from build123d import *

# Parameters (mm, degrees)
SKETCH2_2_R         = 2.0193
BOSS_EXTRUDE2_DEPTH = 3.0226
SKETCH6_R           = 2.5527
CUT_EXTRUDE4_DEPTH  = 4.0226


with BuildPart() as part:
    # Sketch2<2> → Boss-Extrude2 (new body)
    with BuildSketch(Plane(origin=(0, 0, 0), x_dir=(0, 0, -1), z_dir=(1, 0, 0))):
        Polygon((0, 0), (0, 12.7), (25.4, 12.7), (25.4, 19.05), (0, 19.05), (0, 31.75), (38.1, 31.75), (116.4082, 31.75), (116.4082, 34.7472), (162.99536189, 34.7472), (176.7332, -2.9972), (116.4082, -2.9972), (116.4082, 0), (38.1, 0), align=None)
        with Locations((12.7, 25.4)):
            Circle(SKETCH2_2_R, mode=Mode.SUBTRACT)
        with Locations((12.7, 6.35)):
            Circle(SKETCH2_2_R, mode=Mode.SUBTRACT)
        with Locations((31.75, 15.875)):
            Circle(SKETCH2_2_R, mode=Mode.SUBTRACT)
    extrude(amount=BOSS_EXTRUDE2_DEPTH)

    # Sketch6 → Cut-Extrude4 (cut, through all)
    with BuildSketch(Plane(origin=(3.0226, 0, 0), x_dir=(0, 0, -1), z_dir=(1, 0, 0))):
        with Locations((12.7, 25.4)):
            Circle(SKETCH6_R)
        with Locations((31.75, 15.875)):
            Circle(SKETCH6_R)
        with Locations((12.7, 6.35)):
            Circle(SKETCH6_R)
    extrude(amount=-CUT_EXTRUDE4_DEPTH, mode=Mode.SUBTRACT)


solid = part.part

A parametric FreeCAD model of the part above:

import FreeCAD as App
import Part
import Sketcher
Q = App.Units.Quantity

doc = App.newDocument("Part")
params = doc.addObject("Spreadsheet::Sheet", "Params")
for row, (alias, value) in enumerate([
    ("sketch1_height", "1 in"),
    ("sketch1_diameter", "0.159 in"),
    ("sketch1_width", "0.5 in"),
    ("sketch1_width2", "0.25 in"),
    ("sketch1_width3", "0.118 in"),
    ("pad1_length", "0.119 in"),
    ("sketch2_diameter", "0.201 in"),
], start=1):
    params.set(f"A{row}", alias)
    params.set(f"B{row}", "=" + value)
    params.setAlias(f"B{row}", alias)

body = doc.addObject("PartDesign::Body", "Body")

# Sketch on YZ plane
sketch1 = body.newObject("Sketcher::SketchObject", "Sketch")
sketch1.AttachmentSupport = (doc.getObject("YZ_Plane"), [""])
sketch1.MapMode = "FlatFace"
sketch1.addGeometry([
    Part.LineSegment(App.Vector(12.7, 0, 0), App.Vector(0, 0, 0)),  # 0
    Part.LineSegment(App.Vector(0, 0, 0), App.Vector(0, -116.4, 0)),  # 1
    Part.LineSegment(App.Vector(0, -116.4, 0), App.Vector(-3, -116.4, 0)),  # 2
    Part.LineSegment(App.Vector(-3, -116.4, 0), App.Vector(-3, -176.7, 0)),  # 3
    Part.LineSegment(App.Vector(-3, -176.7, 0), App.Vector(34.7, -163, 0)),  # 4
    Part.LineSegment(App.Vector(34.7, -163, 0), App.Vector(34.7, -116.4, 0)),  # 5
    Part.LineSegment(App.Vector(34.7, -116.4, 0), App.Vector(31.8, -116.4, 0)),  # 6
    Part.LineSegment(App.Vector(31.8, -116.4, 0), App.Vector(31.8, 0, 0)),  # 7
    Part.LineSegment(App.Vector(31.8, 0, 0), App.Vector(19.1, 0, 0)),  # 8
    Part.LineSegment(App.Vector(19.1, 0, 0), App.Vector(19.1, -25.4, 0)),  # 9
    Part.LineSegment(App.Vector(19.1, -25.4, 0), App.Vector(12.7, -25.4, 0)),  # 10
    Part.LineSegment(App.Vector(12.7, -25.4, 0), App.Vector(12.7, 0, 0)),  # 11
    Part.Circle(App.Vector(6.3, -12.7, 0), App.Vector(0, 0, 1), 2),  # 12
    Part.Circle(App.Vector(15.9, -31.8, 0), App.Vector(0, 0, 1), 2),  # 13
    Part.Circle(App.Vector(25.4, -12.7, 0), App.Vector(0, 0, 1), 2),  # 14
], False)
sketch1.addConstraint([
    Sketcher.Constraint("Coincident", 0, 2, 1, 1),
    Sketcher.Constraint("Coincident", 1, 2, 2, 1),
    Sketcher.Constraint("Coincident", 2, 2, 3, 1),
    Sketcher.Constraint("Coincident", 3, 2, 4, 1),
    Sketcher.Constraint("Coincident", 4, 2, 5, 1),
    Sketcher.Constraint("Coincident", 5, 2, 6, 1),
    Sketcher.Constraint("Coincident", 6, 2, 7, 1),
    Sketcher.Constraint("Coincident", 7, 2, 8, 1),
    Sketcher.Constraint("Coincident", 8, 2, 9, 1),
    Sketcher.Constraint("Coincident", 9, 2, 10, 1),
    Sketcher.Constraint("Coincident", 10, 2, 11, 1),
    Sketcher.Constraint("Coincident", 11, 2, 0, 1),
    Sketcher.Constraint("Horizontal", 0),
    Sketcher.Constraint("Vertical", 1),
    Sketcher.Constraint("Horizontal", 2),
    Sketcher.Constraint("Vertical", 3),
    Sketcher.Constraint("Vertical", 5),
    Sketcher.Constraint("Horizontal", 6),
    Sketcher.Constraint("Vertical", 7),
    Sketcher.Constraint("Horizontal", 8),
    Sketcher.Constraint("Vertical", 9),
    Sketcher.Constraint("Horizontal", 10),
    Sketcher.Constraint("Vertical", 11),
    Sketcher.Constraint("Coincident", 0, 2, -1, 1),
    Sketcher.Constraint("Equal", 12, 13),
    Sketcher.Constraint("Equal", 13, 14),
    Sketcher.Constraint("PointOnObject", 7, 2, -1),
    Sketcher.Constraint("Horizontal", 12, 3, 14, 3),
    Sketcher.Constraint("Horizontal", 2, 2, 5, 2),
    Sketcher.Constraint("Equal", 2, 6),
    Sketcher.Constraint("Equal", 0, 8),
    Sketcher.Constraint("DistanceY", 9, 2, 9, 1, Q("1 in")),
    Sketcher.Constraint("Diameter", 12, Q("0.159 in")),
    Sketcher.Constraint("DistanceX", 0, 2, 0, 1, Q("0.5 in")),
    Sketcher.Constraint("DistanceX", -1, 1, 14, 3, Q("1 in")),
    Sketcher.Constraint("Angle", 4, Q("20 deg")),
    Sketcher.Constraint("DistanceX", 12, 3, 7, 2, Q("1 in")),
    Sketcher.Constraint("DistanceX", 10, 2, 10, 1, Q("0.25 in")),
    Sketcher.Constraint("DistanceY", 12, 3, -1, 1, Q("0.5 in")),
    Sketcher.Constraint("DistanceX", 2, 2, 2, 1, Q("0.118 in")),
    Sketcher.Constraint("DistanceY", 1, 2, 1, 1, Q("4.583 in")),
    Sketcher.Constraint("DistanceY", 3, 2, 3, 1, Q("2.375 in")),
    Sketcher.Constraint("DistanceY", 13, 3, -1, 1, Q("1.25 in")),
    Sketcher.Constraint("DistanceX", -1, 1, 13, 3, Q("0.625 in")),
])
sketch1.setExpression("Constraints[31]", "Params.sketch1_height")
sketch1.setExpression("Constraints[32]", "Params.sketch1_diameter")
sketch1.setExpression("Constraints[33]", "Params.sketch1_width")
sketch1.setExpression("Constraints[37]", "Params.sketch1_width2")
sketch1.setExpression("Constraints[39]", "Params.sketch1_width3")
pad1 = body.newObject("PartDesign::Pad", "Pad")
pad1.Profile = sketch1
pad1.setExpression("Length", "Params.pad1_length")

# Sketch on YZ plane
sketch2 = body.newObject("Sketcher::SketchObject", "Sketch001")
sketch2.AttachmentSupport = (doc.getObject("YZ_Plane"), [""])
sketch2.MapMode = "FlatFace"
sketch2.AttachmentOffset = App.Placement(App.Vector(0, 0, 0.119 * 25.4), App.Rotation())
sketch2.addGeometry([
    Part.Circle(App.Vector(25.4, -12.7, 0), App.Vector(0, 0, 1), 2.6),
    Part.Circle(App.Vector(15.9, -31.8, 0), App.Vector(0, 0, 1), 2.6),
    Part.Circle(App.Vector(6.3, -12.7, 0), App.Vector(0, 0, 1), 2.6),
], False)
sketch2.addConstraint([
    Sketcher.Constraint("Equal", 0, 1),
    Sketcher.Constraint("Equal", 1, 2),
    Sketcher.Constraint("Horizontal", 0, 3, 2, 3),
    Sketcher.Constraint("Diameter", 0, Q("0.201 in")),
    Sketcher.Constraint("DistanceX", -1, 1, 0, 3, Q("1 in")),
    Sketcher.Constraint("DistanceY", 0, 3, -1, 1, Q("0.5 in")),
    Sketcher.Constraint("DistanceY", 1, 3, -1, 1, Q("1.25 in")),
    Sketcher.Constraint("DistanceX", -1, 1, 2, 3, Q("0.25 in")),
    Sketcher.Constraint("DistanceX", -1, 1, 1, 3, Q("0.625 in")),
])
sketch2.setExpression("Constraints[3]", "Params.sketch2_diameter")
pocket1 = body.newObject("PartDesign::Pocket", "Pocket")
pocket1.Profile = sketch2
pocket1.Type = "ThroughAll"

doc.recompute()
